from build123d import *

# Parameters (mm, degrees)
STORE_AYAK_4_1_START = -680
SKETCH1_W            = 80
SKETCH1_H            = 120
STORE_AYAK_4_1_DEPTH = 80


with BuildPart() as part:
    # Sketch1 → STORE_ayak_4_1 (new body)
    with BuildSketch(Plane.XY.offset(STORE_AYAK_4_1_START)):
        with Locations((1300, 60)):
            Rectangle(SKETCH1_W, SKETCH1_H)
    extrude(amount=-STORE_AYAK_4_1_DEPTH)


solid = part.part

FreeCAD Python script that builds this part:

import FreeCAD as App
import Part
import Sketcher

doc = App.newDocument("Part")
body = doc.addObject("PartDesign::Body", "Body")

# Sketch on XY plane
sketch1 = body.newObject("Sketcher::SketchObject", "Sketch")
sketch1.AttachmentSupport = (doc.getObject("XY_Plane"), [""])
sketch1.MapMode = "FlatFace"
sketch1.AttachmentOffset = App.Placement(App.Vector(0, 0, -680), App.Rotation())
sketch1.addGeometry([
    Part.LineSegment(App.Vector(1260, 120, 0), App.Vector(1260, 0, 0)),
    Part.LineSegment(App.Vector(1260, 0, 0), App.Vector(1340, 0, 0)),
    Part.LineSegment(App.Vector(1340, 0, 0), App.Vector(1340, 120, 0)),
    Part.LineSegment(App.Vector(1340, 120, 0), App.Vector(1260, 120, 0)),
], False)
sketch1.addConstraint([
    Sketcher.Constraint("Coincident", 0, 2, 1, 1),
    Sketcher.Constraint("Coincident", 1, 2, 2, 1),
    Sketcher.Constraint("Coincident", 2, 2, 3, 1),
    Sketcher.Constraint("Coincident", 3, 2, 0, 1),
    Sketcher.Constraint("Vertical", 0),
    Sketcher.Constraint("Horizontal", 1),
    Sketcher.Constraint("Vertical", 2),
    Sketcher.Constraint("Horizontal", 3),
    Sketcher.Constraint("PointOnObject", 0, 2, -1),
    Sketcher.Constraint("DistanceX", 1, 1, 1, 2, 80.0),
    Sketcher.Constraint("DistanceY", 0, 2, 0, 1, 120.0),
    Sketcher.Constraint("DistanceX", -1, 1, 0, 2, 1260.0),
])
pad1 = body.newObject("PartDesign::Pad", "Pad")
pad1.Profile = sketch1
pad1.Length = 80
pad1.Reversed = True

doc.recompute()
